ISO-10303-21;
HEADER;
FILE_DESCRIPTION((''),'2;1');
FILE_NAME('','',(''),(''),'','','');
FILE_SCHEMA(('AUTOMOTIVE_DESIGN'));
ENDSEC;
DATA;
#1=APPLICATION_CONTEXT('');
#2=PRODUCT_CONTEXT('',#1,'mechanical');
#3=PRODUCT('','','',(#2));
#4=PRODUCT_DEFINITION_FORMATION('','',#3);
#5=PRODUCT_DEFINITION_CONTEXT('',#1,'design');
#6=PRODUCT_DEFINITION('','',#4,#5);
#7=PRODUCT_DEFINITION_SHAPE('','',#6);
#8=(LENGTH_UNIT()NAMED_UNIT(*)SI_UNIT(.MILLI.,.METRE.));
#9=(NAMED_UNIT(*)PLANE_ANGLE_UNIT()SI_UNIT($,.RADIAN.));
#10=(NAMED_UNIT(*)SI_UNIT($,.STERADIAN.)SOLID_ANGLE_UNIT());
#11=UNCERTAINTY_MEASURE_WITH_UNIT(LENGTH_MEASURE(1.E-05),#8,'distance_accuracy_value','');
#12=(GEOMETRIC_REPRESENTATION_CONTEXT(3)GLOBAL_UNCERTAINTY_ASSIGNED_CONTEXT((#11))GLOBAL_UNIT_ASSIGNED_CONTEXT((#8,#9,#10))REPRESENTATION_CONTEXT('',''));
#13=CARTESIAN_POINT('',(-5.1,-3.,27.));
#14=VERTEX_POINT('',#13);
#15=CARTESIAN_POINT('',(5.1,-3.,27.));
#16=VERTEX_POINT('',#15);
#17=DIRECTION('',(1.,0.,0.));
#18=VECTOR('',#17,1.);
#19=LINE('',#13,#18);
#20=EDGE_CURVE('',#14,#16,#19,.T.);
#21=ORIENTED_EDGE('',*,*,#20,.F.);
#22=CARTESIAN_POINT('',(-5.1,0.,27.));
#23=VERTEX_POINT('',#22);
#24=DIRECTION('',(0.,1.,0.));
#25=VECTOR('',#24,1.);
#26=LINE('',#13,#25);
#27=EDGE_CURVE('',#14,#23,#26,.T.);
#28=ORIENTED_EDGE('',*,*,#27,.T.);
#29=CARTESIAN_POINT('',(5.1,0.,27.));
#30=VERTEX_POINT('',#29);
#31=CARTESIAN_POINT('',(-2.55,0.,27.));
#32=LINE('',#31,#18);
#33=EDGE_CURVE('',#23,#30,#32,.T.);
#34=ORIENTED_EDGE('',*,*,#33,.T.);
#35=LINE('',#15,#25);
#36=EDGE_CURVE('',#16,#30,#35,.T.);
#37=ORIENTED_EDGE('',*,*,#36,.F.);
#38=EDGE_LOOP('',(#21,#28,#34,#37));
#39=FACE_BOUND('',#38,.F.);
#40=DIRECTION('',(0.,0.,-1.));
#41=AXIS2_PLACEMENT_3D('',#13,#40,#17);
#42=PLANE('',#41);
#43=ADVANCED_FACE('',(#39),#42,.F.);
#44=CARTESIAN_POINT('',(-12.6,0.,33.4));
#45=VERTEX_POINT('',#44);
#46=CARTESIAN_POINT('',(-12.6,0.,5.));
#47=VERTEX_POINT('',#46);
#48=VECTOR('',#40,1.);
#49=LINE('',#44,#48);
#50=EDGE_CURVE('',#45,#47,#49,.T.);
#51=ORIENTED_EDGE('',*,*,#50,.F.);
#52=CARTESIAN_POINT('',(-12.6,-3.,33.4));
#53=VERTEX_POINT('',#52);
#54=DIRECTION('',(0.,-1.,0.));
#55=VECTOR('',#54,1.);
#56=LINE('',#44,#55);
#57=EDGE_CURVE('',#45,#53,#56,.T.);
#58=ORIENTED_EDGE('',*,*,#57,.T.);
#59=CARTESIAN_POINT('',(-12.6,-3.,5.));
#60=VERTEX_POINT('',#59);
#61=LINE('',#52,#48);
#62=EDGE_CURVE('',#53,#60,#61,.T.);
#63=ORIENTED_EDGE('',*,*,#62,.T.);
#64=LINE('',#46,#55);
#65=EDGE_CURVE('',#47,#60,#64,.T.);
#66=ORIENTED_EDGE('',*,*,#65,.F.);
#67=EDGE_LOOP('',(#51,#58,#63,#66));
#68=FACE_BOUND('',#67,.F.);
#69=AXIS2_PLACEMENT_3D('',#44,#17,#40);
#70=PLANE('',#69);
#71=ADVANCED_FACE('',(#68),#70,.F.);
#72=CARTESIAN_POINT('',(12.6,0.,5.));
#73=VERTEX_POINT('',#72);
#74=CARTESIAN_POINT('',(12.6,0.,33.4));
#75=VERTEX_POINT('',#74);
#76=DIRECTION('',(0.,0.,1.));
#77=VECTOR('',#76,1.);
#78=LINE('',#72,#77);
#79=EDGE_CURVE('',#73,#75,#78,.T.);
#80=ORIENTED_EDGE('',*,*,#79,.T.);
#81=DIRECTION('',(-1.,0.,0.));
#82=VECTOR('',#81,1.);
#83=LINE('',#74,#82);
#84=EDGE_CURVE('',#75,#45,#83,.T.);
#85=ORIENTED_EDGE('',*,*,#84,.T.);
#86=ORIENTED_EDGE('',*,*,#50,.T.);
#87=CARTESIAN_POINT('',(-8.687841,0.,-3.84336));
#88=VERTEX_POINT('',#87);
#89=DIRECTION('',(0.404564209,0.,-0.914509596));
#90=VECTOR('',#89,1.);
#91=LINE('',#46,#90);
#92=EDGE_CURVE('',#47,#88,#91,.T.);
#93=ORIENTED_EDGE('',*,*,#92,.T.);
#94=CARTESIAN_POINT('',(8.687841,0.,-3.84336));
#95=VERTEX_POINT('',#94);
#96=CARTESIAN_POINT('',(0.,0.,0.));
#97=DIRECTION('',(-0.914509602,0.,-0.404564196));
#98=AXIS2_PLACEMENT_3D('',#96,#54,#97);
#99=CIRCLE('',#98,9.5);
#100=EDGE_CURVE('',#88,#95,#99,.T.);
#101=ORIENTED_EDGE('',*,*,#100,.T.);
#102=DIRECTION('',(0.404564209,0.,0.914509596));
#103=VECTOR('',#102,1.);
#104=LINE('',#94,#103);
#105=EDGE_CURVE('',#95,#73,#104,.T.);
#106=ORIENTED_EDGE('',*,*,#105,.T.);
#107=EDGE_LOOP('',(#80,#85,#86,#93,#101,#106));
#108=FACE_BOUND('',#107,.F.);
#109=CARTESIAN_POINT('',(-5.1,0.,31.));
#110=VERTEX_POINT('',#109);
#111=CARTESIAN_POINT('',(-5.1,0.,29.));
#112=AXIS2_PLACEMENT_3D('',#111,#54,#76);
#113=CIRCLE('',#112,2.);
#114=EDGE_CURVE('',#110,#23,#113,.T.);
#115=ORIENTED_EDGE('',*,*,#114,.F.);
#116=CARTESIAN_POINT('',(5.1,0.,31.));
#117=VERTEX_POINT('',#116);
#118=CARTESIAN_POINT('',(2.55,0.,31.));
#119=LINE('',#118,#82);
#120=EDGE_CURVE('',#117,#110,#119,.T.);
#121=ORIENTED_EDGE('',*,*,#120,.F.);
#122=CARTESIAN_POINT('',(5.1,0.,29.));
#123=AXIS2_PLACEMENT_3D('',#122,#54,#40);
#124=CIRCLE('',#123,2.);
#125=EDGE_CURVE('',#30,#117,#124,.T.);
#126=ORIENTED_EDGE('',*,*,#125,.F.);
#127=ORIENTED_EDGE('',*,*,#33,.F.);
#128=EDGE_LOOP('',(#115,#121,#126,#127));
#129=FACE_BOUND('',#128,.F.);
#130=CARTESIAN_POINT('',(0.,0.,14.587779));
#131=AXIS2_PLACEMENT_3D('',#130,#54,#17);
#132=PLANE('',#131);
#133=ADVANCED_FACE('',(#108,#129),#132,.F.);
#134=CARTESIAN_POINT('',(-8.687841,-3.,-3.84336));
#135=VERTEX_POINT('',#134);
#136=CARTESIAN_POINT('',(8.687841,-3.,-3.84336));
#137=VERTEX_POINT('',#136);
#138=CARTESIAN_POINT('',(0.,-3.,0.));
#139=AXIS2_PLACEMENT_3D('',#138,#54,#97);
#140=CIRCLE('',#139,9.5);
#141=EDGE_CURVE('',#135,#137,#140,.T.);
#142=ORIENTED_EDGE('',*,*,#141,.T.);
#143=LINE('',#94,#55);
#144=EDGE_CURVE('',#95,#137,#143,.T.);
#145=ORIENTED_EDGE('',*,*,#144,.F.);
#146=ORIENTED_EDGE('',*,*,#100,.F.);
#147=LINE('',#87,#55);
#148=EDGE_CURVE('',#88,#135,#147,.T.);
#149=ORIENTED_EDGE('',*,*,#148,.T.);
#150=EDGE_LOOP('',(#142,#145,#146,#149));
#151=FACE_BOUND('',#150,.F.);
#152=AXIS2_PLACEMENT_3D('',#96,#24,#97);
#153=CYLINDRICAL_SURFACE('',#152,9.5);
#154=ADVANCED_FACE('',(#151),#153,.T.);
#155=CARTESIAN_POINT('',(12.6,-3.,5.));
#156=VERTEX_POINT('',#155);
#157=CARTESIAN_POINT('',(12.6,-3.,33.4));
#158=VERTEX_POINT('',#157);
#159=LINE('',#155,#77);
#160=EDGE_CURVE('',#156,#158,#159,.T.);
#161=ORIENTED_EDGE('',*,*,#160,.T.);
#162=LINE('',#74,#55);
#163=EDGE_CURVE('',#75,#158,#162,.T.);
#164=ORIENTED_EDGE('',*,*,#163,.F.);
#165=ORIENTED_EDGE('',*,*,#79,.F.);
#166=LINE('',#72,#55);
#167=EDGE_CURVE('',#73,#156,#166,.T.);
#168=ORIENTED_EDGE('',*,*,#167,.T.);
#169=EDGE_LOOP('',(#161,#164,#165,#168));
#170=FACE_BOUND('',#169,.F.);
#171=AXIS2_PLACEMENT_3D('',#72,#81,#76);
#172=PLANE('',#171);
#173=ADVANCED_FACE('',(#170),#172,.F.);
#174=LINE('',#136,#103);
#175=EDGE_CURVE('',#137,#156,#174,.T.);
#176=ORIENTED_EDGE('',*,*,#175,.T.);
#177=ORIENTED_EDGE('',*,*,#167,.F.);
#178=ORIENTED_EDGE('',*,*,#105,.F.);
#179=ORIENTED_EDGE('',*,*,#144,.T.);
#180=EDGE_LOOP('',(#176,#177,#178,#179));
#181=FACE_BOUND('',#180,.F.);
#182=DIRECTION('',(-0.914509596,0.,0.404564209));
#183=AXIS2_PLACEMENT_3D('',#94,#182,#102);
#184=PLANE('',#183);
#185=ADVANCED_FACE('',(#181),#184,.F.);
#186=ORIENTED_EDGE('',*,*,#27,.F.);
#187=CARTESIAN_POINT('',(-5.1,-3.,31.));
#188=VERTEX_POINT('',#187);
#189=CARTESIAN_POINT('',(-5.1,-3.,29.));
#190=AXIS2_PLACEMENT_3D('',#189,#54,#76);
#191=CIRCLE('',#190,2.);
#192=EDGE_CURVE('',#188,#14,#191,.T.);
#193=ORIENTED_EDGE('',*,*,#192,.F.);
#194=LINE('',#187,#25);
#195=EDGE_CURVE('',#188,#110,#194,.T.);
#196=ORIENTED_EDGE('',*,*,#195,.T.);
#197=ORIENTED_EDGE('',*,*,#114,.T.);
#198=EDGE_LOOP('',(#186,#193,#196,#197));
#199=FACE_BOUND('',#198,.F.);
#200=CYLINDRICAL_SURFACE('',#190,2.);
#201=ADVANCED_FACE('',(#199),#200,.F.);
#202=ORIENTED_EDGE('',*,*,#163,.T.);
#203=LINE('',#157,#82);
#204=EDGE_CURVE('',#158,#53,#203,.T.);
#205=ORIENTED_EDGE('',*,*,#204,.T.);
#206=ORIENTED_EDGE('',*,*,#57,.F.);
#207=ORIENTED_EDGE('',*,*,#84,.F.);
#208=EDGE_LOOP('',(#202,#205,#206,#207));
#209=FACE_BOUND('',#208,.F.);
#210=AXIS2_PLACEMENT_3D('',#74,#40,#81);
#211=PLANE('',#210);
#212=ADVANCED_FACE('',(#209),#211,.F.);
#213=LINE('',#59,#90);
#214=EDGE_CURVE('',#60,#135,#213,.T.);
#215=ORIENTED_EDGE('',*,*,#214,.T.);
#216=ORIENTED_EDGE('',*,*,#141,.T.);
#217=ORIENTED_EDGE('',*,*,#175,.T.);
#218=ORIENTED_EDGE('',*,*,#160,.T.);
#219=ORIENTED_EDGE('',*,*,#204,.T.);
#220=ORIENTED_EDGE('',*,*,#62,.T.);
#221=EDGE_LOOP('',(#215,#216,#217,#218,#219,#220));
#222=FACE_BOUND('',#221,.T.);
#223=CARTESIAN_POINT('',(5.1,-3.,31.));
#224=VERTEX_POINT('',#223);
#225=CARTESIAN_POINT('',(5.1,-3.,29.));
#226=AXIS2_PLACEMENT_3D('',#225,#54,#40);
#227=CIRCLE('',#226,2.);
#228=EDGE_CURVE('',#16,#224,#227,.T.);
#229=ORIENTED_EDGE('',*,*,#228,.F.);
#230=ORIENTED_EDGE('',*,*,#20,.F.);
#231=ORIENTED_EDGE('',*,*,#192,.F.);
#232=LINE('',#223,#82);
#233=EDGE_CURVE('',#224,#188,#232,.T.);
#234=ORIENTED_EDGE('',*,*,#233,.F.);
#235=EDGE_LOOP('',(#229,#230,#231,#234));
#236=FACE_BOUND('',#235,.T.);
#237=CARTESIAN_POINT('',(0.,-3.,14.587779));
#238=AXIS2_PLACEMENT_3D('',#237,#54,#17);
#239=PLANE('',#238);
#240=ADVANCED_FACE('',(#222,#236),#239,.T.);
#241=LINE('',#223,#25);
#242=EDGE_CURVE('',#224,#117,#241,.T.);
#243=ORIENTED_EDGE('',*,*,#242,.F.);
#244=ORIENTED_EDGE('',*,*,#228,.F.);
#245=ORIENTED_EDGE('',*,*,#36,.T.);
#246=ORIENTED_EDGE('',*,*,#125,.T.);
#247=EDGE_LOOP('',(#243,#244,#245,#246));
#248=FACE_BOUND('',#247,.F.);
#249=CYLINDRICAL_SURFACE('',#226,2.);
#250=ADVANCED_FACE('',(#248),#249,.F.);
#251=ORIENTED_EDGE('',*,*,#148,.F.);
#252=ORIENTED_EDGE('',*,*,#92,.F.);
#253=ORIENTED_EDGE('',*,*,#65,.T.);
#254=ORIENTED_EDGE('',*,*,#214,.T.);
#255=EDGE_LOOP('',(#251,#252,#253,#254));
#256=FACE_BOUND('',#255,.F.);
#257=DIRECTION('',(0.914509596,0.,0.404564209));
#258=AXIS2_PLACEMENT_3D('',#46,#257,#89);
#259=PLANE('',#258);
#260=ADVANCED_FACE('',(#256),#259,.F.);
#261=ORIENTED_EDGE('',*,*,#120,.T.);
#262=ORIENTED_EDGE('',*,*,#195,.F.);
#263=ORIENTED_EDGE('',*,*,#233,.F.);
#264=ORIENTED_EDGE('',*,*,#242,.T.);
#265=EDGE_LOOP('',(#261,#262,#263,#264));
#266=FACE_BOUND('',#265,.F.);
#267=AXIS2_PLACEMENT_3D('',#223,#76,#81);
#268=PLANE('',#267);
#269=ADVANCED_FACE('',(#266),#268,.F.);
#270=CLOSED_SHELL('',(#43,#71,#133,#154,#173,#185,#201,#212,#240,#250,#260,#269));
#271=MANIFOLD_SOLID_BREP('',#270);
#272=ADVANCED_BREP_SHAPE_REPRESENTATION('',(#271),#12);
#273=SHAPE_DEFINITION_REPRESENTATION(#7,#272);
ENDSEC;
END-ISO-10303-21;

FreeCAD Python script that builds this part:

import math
import FreeCAD as App
import Part
import Sketcher
Q = App.Units.Quantity

doc = App.newDocument("Part")
body = doc.addObject("PartDesign::Body", "Body")

# Sketch on XZ plane
sketch1 = body.newObject("Sketcher::SketchObject", "Sketch")
sketch1.AttachmentSupport = (doc.getObject("XZ_Plane"), [""])
sketch1.MapMode = "FlatFace"
sketch1.addGeometry([
    Part.LineSegment(App.Vector(-13, 33, 0), App.Vector(-13, 5, 0)),  # 0
    Part.LineSegment(App.Vector(-13, 5, 0), App.Vector(-9, -4, 0)),  # 1
    Part.ArcOfCircle(Part.Circle(App.Vector(0, 0, 0), App.Vector(0, 0, 1), 9), math.radians(-156), math.radians(-24)),  # 2
    Part.LineSegment(App.Vector(9, -4, 0), App.Vector(13, 5, 0)),  # 3
    Part.LineSegment(App.Vector(13, 5, 0), App.Vector(13, 33, 0)),  # 4
    Part.LineSegment(App.Vector(13, 33, 0), App.Vector(-13, 33, 0)),  # 5
], False)
sketch1.addConstraint([
    Sketcher.Constraint("Coincident", 0, 2, 1, 1),
    Sketcher.Constraint("Tangent", 1, 2, 2, 1),
    Sketcher.Constraint("Tangent", 2, 2, 3, 1),
    Sketcher.Constraint("Coincident", 3, 2, 4, 1),
    Sketcher.Constraint("Coincident", 4, 2, 5, 1),
    Sketcher.Constraint("Coincident", 5, 2, 0, 1),
    Sketcher.Constraint("Vertical", 0),
    Sketcher.Constraint("Vertical", 4),
    Sketcher.Constraint("Horizontal", 5),
    Sketcher.Constraint("Coincident", 2, 3, -1, 1),
    Sketcher.Constraint("Symmetric", 0, 2, 3, 2, -2),
    Sketcher.Constraint("Radius", 2, Q("9.5 mm")),
    Sketcher.Constraint("DistanceX", 5, 2, 5, 1, Q("25.2 mm")),
    Sketcher.Constraint("DistanceY", 0, 2, 0, 1, Q("28.4 mm")),
    Sketcher.Constraint("DistanceY", -1, 1, 0, 2, Q("5 mm")),
])
pad1 = body.newObject("PartDesign::Pad", "Pad")
pad1.Profile = sketch1
pad1.Length = 3

# Sketch on XZ plane
sketch2 = body.newObject("Sketcher::SketchObject", "Sketch001")
sketch2.AttachmentSupport = (doc.getObject("XZ_Plane"), [""])
sketch2.MapMode = "FlatFace"
sketch2.AttachmentOffset = App.Placement(App.Vector(0, 0, 3), App.Rotation())
sketch2.addGeometry([
    Part.ArcOfCircle(Part.Circle(App.Vector(-5.1, 29, 0), App.Vector(0, 0, 1), 2), math.radians(90), math.radians(270)),
    Part.LineSegment(App.Vector(-5.1, 27, 0), App.Vector(5.1, 27, 0)),
    Part.ArcOfCircle(Part.Circle(App.Vector(5.1, 29, 0), App.Vector(0, 0, 1), 2), math.radians(-90), math.radians(90)),
    Part.LineSegment(App.Vector(5.1, 31, 0), App.Vector(-5.1, 31, 0)),
], False)
sketch2.addConstraint([
    Sketcher.Constraint("Tangent", 0, 2, 1, 1),
    Sketcher.Constraint("Tangent", 1, 2, 2, 1),
    Sketcher.Constraint("Tangent", 2, 2, 3, 1),
    Sketcher.Constraint("Tangent", 3, 2, 0, 1),
    Sketcher.Constraint("Horizontal", 1),
    Sketcher.Constraint("Horizontal", 3),
    Sketcher.Constraint("Radius", 0, Q("2 mm")),
    Sketcher.Constraint("DistanceX", 1, 1, 1, 2, Q("10.2 mm")),
    Sketcher.Constraint("DistanceY", -1, 1, 0, 3, Q("29 mm")),
    Sketcher.Constraint("DistanceX", 0, 3, -1, 1, Q("5.1 mm")),
])
pocket1 = body.newObject("PartDesign::Pocket", "Pocket")
pocket1.Profile = sketch2
pocket1.Length = 25

doc.recompute()
